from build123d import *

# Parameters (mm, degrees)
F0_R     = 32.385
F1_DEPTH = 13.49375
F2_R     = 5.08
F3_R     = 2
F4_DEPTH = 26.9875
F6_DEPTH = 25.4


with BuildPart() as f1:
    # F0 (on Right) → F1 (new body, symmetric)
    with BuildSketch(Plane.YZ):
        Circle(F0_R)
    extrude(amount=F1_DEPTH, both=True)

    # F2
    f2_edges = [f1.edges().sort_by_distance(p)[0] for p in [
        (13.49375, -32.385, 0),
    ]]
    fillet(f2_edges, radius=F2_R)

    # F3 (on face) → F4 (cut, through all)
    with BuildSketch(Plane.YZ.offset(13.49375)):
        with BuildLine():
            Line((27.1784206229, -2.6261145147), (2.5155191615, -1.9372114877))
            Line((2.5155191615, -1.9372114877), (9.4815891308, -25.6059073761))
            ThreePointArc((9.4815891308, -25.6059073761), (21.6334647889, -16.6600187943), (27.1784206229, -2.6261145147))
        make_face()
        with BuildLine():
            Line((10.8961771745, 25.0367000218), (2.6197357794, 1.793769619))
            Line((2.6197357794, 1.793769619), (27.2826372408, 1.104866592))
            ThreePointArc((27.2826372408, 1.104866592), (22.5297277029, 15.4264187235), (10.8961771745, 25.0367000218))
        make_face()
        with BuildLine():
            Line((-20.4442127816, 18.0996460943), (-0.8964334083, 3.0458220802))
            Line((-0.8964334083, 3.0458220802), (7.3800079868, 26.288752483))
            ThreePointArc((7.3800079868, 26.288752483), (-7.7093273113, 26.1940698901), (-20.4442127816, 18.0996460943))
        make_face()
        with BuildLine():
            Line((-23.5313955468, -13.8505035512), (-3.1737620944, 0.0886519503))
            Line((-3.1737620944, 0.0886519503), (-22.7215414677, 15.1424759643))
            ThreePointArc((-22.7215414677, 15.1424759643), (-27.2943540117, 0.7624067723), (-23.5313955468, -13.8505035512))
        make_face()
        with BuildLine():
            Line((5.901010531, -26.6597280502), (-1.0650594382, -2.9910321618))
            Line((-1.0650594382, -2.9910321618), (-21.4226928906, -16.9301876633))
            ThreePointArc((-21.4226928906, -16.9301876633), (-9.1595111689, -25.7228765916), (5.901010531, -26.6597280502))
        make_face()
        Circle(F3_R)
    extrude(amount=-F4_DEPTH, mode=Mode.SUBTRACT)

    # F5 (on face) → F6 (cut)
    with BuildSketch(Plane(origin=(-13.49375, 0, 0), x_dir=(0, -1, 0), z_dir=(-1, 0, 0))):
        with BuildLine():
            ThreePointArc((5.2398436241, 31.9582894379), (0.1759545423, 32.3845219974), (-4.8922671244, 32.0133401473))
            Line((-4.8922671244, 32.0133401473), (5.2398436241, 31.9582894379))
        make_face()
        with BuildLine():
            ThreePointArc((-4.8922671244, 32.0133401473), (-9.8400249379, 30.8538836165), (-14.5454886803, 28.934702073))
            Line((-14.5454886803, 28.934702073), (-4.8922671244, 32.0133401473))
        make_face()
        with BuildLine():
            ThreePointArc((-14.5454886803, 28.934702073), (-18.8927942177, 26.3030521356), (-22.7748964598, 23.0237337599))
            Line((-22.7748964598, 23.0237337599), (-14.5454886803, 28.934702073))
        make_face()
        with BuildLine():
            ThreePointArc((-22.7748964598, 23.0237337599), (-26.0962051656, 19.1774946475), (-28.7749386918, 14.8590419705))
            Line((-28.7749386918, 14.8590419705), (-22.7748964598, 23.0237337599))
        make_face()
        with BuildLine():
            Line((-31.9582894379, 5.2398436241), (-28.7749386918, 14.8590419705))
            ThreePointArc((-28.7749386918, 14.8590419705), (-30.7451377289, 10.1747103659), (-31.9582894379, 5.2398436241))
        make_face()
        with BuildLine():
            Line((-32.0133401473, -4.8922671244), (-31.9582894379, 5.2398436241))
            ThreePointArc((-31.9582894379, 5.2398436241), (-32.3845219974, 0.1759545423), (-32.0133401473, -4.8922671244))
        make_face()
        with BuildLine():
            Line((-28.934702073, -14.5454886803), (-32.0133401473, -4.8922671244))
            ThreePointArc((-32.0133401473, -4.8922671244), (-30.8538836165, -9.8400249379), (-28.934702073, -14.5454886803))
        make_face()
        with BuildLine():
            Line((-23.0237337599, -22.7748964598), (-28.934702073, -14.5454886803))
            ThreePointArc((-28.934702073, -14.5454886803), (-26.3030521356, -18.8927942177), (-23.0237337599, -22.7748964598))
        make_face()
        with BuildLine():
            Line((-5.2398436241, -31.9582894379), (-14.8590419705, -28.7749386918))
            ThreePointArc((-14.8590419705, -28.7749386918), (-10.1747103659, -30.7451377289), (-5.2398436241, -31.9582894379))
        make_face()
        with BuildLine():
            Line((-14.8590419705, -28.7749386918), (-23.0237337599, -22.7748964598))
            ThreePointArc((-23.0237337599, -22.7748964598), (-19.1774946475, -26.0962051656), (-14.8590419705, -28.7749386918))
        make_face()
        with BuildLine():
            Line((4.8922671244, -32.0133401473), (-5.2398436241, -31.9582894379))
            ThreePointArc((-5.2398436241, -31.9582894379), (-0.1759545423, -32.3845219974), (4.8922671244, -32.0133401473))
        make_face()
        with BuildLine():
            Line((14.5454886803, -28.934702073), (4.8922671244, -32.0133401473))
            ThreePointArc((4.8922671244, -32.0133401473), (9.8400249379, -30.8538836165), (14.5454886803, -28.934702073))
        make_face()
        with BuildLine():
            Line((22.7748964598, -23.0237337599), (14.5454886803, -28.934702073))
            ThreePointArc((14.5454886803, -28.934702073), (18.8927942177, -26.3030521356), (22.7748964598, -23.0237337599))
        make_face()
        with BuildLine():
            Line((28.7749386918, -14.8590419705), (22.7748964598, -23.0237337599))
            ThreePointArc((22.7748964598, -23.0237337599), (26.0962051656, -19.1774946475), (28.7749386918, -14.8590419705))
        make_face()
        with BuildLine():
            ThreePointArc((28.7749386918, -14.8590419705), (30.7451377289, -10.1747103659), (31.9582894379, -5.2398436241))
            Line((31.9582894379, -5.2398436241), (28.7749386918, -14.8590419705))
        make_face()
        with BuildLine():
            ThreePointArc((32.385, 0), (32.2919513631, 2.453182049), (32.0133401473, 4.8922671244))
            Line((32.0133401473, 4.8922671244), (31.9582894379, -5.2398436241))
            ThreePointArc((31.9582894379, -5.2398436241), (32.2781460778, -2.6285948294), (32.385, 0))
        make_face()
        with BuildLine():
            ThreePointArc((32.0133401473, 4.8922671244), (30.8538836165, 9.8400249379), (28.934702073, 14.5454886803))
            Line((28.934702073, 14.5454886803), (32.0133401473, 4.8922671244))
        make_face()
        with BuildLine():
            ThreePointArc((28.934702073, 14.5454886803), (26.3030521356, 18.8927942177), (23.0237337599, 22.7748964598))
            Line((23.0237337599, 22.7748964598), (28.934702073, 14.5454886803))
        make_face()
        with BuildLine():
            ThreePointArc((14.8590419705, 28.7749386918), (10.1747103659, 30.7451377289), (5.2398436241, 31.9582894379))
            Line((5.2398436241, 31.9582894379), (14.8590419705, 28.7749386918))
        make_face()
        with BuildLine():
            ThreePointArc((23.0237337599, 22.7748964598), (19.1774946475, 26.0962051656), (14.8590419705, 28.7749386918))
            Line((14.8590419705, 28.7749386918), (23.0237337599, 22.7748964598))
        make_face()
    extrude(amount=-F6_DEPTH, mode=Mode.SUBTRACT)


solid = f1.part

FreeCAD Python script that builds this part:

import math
import FreeCAD as App
import Part
import Sketcher

V = App.Vector
Q = App.Units.Quantity


def edges_at(feature, points):
    """Names of the edges that pass closest to the given points."""
    edges = feature.Shape.Edges
    near = lambda p: min(range(len(edges)), key=lambda i: edges[i].distToShape(Part.Vertex(*p))[0])
    return sorted({f"Edge{near(p) + 1}" for p in points})

doc = App.newDocument("Part")
body = doc.addObject("PartDesign::Body", "Body")

# Sketch on YZ plane
sketch1 = doc.addObject("Sketcher::SketchObject", "Sketch")
body.addObject(sketch1)
sketch1.AttachmentSupport = (doc.YZ_Plane, [""])
sketch1.MapMode = "FlatFace"
sketch1.addGeometry(Part.Circle(V(0, 0, 0), V(0, 0, 1), 32), False)
sketch1.addConstraint([
    Sketcher.Constraint("Coincident", 0, 3, -1, 1),
    Sketcher.Constraint("Diameter", 0, Q("2.55 in")),
])
pad1 = doc.addObject("PartDesign::Pad", "Pad")
body.addObject(pad1)
pad1.Profile = sketch1
pad1.Length = Q("1.0625 in")
pad1.Midplane = True
doc.recompute()

fillet = doc.addObject("PartDesign::Fillet", "Fillet")
body.addObject(fillet)
fillet.Base = (pad1, edges_at(pad1, [(13.494, -32.385, 0)]))
fillet.Radius = Q("0.2 in")

# Sketch on YZ plane
sketch2 = doc.addObject("Sketcher::SketchObject", "Sketch001")
body.addObject(sketch2)
sketch2.AttachmentSupport = (doc.YZ_Plane, [""])
sketch2.MapMode = "FlatFace"
sketch2.AttachmentOffset = App.Placement(V(0, 0, 0.53125 * 25.4), App.Rotation())
sketch2.addGeometry([
    Part.LineSegment(V(27.2, -2.6, 0), V(2.5, -1.9, 0)),  # 0
    Part.LineSegment(V(2.5, -1.9, 0), V(9.5, -25.6, 0)),  # 1
    Part.ArcOfCircle(Part.Circle(V(0, 0, 0), V(0, 0, 1), 27.3), math.radians(-70), math.radians(-6)),  # 2
    Part.LineSegment(V(10.9, 25, 0), V(2.6, 1.8, 0)),  # 3
    Part.LineSegment(V(2.6, 1.8, 0), V(27.3, 1.1, 0)),  # 4
    Part.ArcOfCircle(Part.Circle(V(0, 0, 0), V(0, 0, 1), 27.3), math.radians(2), math.radians(66)),  # 5
    Part.LineSegment(V(-20.4, 18.1, 0), V(-0.9, 3, 0)),  # 6
    Part.LineSegment(V(-0.9, 3, 0), V(7.4, 26.3, 0)),  # 7
    Part.ArcOfCircle(Part.Circle(V(0, 0, 0), V(0, 0, 1), 27.3), math.radians(74), math.radians(138)),  # 8
    Part.LineSegment(V(-23.5, -13.9, 0), V(-3.2, 0.1, 0)),  # 9
    Part.LineSegment(V(-3.2, 0.1, 0), V(-22.7, 15.1, 0)),  # 10
    Part.ArcOfCircle(Part.Circle(V(0, 0, 0), V(0, 0, 1), 27.3), math.radians(146), math.radians(210)),  # 11
    Part.LineSegment(V(5.9, -26.7, 0), V(-1.1, -3, 0)),  # 12
    Part.LineSegment(V(-1.1, -3, 0), V(-21.4, -16.9, 0)),  # 13
    Part.ArcOfCircle(Part.Circle(V(0, 0, 0), V(0, 0, 1), 27.3), math.radians(-142), math.radians(-78)),  # 14
    Part.Circle(V(0, 0, 0), V(0, 0, 1), 2),  # 15
], False)
sketch2.addConstraint([
    Sketcher.Constraint("Coincident", 0, 2, 1, 1),
    Sketcher.Constraint("Coincident", 1, 2, 2, 1),
    Sketcher.Constraint("Coincident", 2, 2, 0, 1),
    Sketcher.Constraint("Coincident", 3, 2, 4, 1),
    Sketcher.Constraint("Coincident", 4, 2, 5, 1),
    Sketcher.Constraint("Coincident", 5, 2, 3, 1),
    Sketcher.Constraint("Coincident", 6, 2, 7, 1),
    Sketcher.Constraint("Coincident", 7, 2, 8, 1),
    Sketcher.Constraint("Coincident", 8, 2, 6, 1),
    Sketcher.Constraint("Coincident", 9, 2, 10, 1),
    Sketcher.Constraint("Coincident", 10, 2, 11, 1),
    Sketcher.Constraint("Coincident", 11, 2, 9, 1),
    Sketcher.Constraint("Coincident", 12, 2, 13, 1),
    Sketcher.Constraint("Coincident", 13, 2, 14, 1),
    Sketcher.Constraint("Coincident", 14, 2, 12, 1),
    Sketcher.Constraint("Coincident", 2, 3, -1, 1),
    Sketcher.Constraint("Coincident", 5, 3, -1, 1),
    Sketcher.Constraint("Coincident", 8, 3, -1, 1),
    Sketcher.Constraint("Coincident", 11, 3, -1, 1),
    Sketcher.Constraint("Coincident", 14, 3, -1, 1),
    Sketcher.Constraint("Coincident", 15, 3, -1, 1),
    Sketcher.Constraint("Equal", 2, 5),
    Sketcher.Constraint("Equal", 5, 8),
    Sketcher.Constraint("Equal", 8, 11),
    Sketcher.Constraint("Equal", 11, 14),
    Sketcher.Constraint("Parallel", 0, 4),
    Sketcher.Constraint("Parallel", 3, 7),
    Sketcher.Constraint("Parallel", 6, 10),
    Sketcher.Constraint("Parallel", 1, 12),
    Sketcher.Constraint("Parallel", 9, 13),
    Sketcher.Constraint("Equal", 0, 1),
    Sketcher.Constraint("Equal", 1, 3),
    Sketcher.Constraint("Equal", 3, 4),
    Sketcher.Constraint("Equal", 4, 6),
    Sketcher.Constraint("Equal", 6, 7),
    Sketcher.Constraint("Equal", 7, 9),
    Sketcher.Constraint("Equal", 9, 10),
    Sketcher.Constraint("Equal", 10, 12),
    Sketcher.Constraint("Equal", 12, 13),
    Sketcher.Constraint("Radius", 2, Q("1.075 in")),
    Sketcher.Constraint("Angle", 0, Q("178.399987 deg")),
    Sketcher.Constraint("Angle", 1, Q("-73.600013 deg")),
    Sketcher.Constraint("Angle", 3, Q("-109.600013 deg")),
    Sketcher.Constraint("Angle", 6, Q("-37.600013 deg")),
    Sketcher.Constraint("Angle", 9, Q("34.399987 deg")),
    Sketcher.Constraint("Diameter", 15, Q("4 mm")),
    Sketcher.Constraint("DistanceY", -1, 1, 5, 2, Q("25.0367 mm")),
])
pocket1 = doc.addObject("PartDesign::Pocket", "Pocket")
body.addObject(pocket1)
pocket1.Profile = sketch2
pocket1.Type = "ThroughAll"

# Sketch on YZ plane
sketch3 = doc.addObject("Sketcher::SketchObject", "Sketch002")
body.addObject(sketch3)
sketch3.AttachmentSupport = (doc.YZ_Plane, [""])
sketch3.MapMode = "FlatFace"
sketch3.AttachmentOffset = App.Placement(V(0, 0, -0.53125 * 25.4), App.Rotation())
sketch3.addGeometry([
    Part.ArcOfCircle(Part.Circle(V(0, 0, 0), V(0, 0, 1), 32.4), math.radians(81.31), math.radians(99.31)),  # 0
    Part.LineSegment(V(4.9, 32, 0), V(-5.2, 32, 0)),  # 1
    Part.ArcOfCircle(Part.Circle(V(0, 0, 0), V(0, 0, 1), 32.4), math.radians(63.31), math.radians(81.31)),  # 2
    Part.LineSegment(V(14.5, 28.9, 0), V(4.9, 32, 0)),  # 3
    Part.ArcOfCircle(Part.Circle(V(0, 0, 0), V(0, 0, 1), 32.4), math.radians(45.31), math.radians(63.31)),  # 4
    Part.LineSegment(V(22.8, 23, 0), V(14.5, 28.9, 0)),  # 5
    Part.ArcOfCircle(Part.Circle(V(0, 0, 0), V(0, 0, 1), 32.4), math.radians(27.31), math.radians(45.31)),  # 6
    Part.LineSegment(V(28.8, 14.9, 0), V(22.8, 23, 0)),  # 7
    Part.LineSegment(V(32, 5.2, 0), V(28.8, 14.9, 0)),  # 8
    Part.ArcOfCircle(Part.Circle(V(0, 0, 0), V(0, 0, 1), 32.4), math.radians(9.31), math.radians(27.31)),  # 9
    Part.LineSegment(V(32, -4.9, 0), V(32, 5.2, 0)),  # 10
    Part.ArcOfCircle(Part.Circle(V(0, 0, 0), V(0, 0, 1), 32.4), math.radians(-8.69), math.radians(9.31)),  # 11
    Part.LineSegment(V(28.9, -14.5, 0), V(32, -4.9, 0)),  # 12
    Part.ArcOfCircle(Part.Circle(V(0, 0, 0), V(0, 0, 1), 32.4), math.radians(-26.69), math.radians(-8.69)),  # 13
    Part.LineSegment(V(23, -22.8, 0), V(28.9, -14.5, 0)),  # 14
    Part.ArcOfCircle(Part.Circle(V(0, 0, 0), V(0, 0, 1), 32.4), math.radians(-44.69), math.radians(-26.69)),  # 15
    Part.LineSegment(V(5.2, -32, 0), V(14.9, -28.8, 0)),  # 16
    Part.ArcOfCircle(Part.Circle(V(0, 0, 0), V(0, 0, 1), 32.4), math.radians(-80.69), math.radians(-62.69)),  # 17
    Part.LineSegment(V(14.9, -28.8, 0), V(23, -22.8, 0)),  # 18
    Part.ArcOfCircle(Part.Circle(V(0, 0, 0), V(0, 0, 1), 32.4), math.radians(-62.69), math.radians(-44.69)),  # 19
    Part.LineSegment(V(-4.9, -32, 0), V(5.2, -32, 0)),  # 20
    Part.ArcOfCircle(Part.Circle(V(0, 0, 0), V(0, 0, 1), 32.4), math.radians(-98.69), math.radians(-80.69)),  # 21
    Part.LineSegment(V(-14.5, -28.9, 0), V(-4.9, -32, 0)),  # 22
    Part.ArcOfCircle(Part.Circle(V(0, 0, 0), V(0, 0, 1), 32.4), math.radians(-116.69), math.radians(-98.69)),  # 23
    Part.LineSegment(V(-22.8, -23, 0), V(-14.5, -28.9, 0)),  # 24
    Part.ArcOfCircle(Part.Circle(V(0, 0, 0), V(0, 0, 1), 32.4), math.radians(-134.69), math.radians(-116.69)),  # 25
    Part.LineSegment(V(-28.8, -14.9, 0), V(-22.8, -23, 0)),  # 26
    Part.ArcOfCircle(Part.Circle(V(0, 0, 0), V(0, 0, 1), 32.4), math.radians(-152.69), math.radians(-134.69)),  # 27
    Part.ArcOfCircle(Part.Circle(V(0, 0, 0), V(0, 0, 1), 32.4), math.radians(-170.69), math.radians(-152.69)),  # 28
    Part.LineSegment(V(-32, -5.2, 0), V(-28.8, -14.9, 0)),  # 29
    Part.ArcOfCircle(Part.Circle(V(0, 0, 0), V(0, 0, 1), 32.4), math.radians(171.31), math.radians(180)),  # 30
    Part.LineSegment(V(-32, 4.9, 0), V(-32, -5.2, 0)),  # 31
    Part.ArcOfCircle(Part.Circle(V(0, 0, 0), V(0, 0, 1), 32.4), math.radians(-180), math.radians(-170.69)),  # 32
    Part.ArcOfCircle(Part.Circle(V(0, 0, 0), V(0, 0, 1), 32.4), math.radians(153.31), math.radians(171.31)),  # 33
    Part.LineSegment(V(-28.9, 14.5, 0), V(-32, 4.9, 0)),  # 34
    Part.ArcOfCircle(Part.Circle(V(0, 0, 0), V(0, 0, 1), 32.4), math.radians(135.31), math.radians(153.31)),  # 35
    Part.LineSegment(V(-23, 22.8, 0), V(-28.9, 14.5, 0)),  # 36
    Part.ArcOfCircle(Part.Circle(V(0, 0, 0), V(0, 0, 1), 32.4), math.radians(99.31), math.radians(117.31)),  # 37
    Part.LineSegment(V(-5.2, 32, 0), V(-14.9, 28.8, 0)),  # 38
    Part.ArcOfCircle(Part.Circle(V(0, 0, 0), V(0, 0, 1), 32.4), math.radians(117.31), math.radians(135.31)),  # 39
    Part.LineSegment(V(-14.9, 28.8, 0), V(-23, 22.8, 0)),  # 40
], False)
sketch3.addConstraint([
    Sketcher.Constraint("Coincident", 0, 1, 1, 1),
    Sketcher.Constraint("Coincident", 1, 2, 0, 2),
    Sketcher.Constraint("Coincident", 2, 1, 3, 1),
    Sketcher.Constraint("Coincident", 3, 2, 2, 2),
    Sketcher.Constraint("Coincident", 4, 1, 5, 1),
    Sketcher.Constraint("Coincident", 5, 2, 4, 2),
    Sketcher.Constraint("Coincident", 6, 1, 7, 1),
    Sketcher.Constraint("Coincident", 7, 2, 6, 2),
    Sketcher.Constraint("Coincident", 8, 1, 9, 1),
    Sketcher.Constraint("Coincident", 9, 2, 8, 2),
    Sketcher.Constraint("Coincident", 10, 1, 11, 1),
    Sketcher.Constraint("Coincident", 11, 2, 10, 2),
    Sketcher.Constraint("Coincident", 12, 1, 13, 1),
    Sketcher.Constraint("Coincident", 13, 2, 12, 2),
    Sketcher.Constraint("Coincident", 14, 1, 15, 1),
    Sketcher.Constraint("Coincident", 15, 2, 14, 2),
    Sketcher.Constraint("Coincident", 16, 1, 17, 1),
    Sketcher.Constraint("Coincident", 17, 2, 16, 2),
    Sketcher.Constraint("Coincident", 18, 1, 19, 1),
    Sketcher.Constraint("Coincident", 19, 2, 18, 2),
    Sketcher.Constraint("Coincident", 20, 1, 21, 1),
    Sketcher.Constraint("Coincident", 21, 2, 20, 2),
    Sketcher.Constraint("Coincident", 22, 1, 23, 1),
    Sketcher.Constraint("Coincident", 23, 2, 22, 2),
    Sketcher.Constraint("Coincident", 24, 1, 25, 1),
    Sketcher.Constraint("Coincident", 25, 2, 24, 2),
    Sketcher.Constraint("Coincident", 26, 1, 27, 1),
    Sketcher.Constraint("Coincident", 27, 2, 26, 2),
    Sketcher.Constraint("Coincident", 28, 1, 29, 1),
    Sketcher.Constraint("Coincident", 29, 2, 28, 2),
    Sketcher.Constraint("Coincident", 30, 1, 31, 1),
    Sketcher.Constraint("Coincident", 31, 2, 32, 2),
    Sketcher.Constraint("Tangent", 32, 1, 30, 2),
    Sketcher.Constraint("Coincident", 33, 1, 34, 1),
    Sketcher.Constraint("Coincident", 34, 2, 33, 2),
    Sketcher.Constraint("Coincident", 35, 1, 36, 1),
    Sketcher.Constraint("Coincident", 36, 2, 35, 2),
    Sketcher.Constraint("Coincident", 37, 1, 38, 1),
    Sketcher.Constraint("Coincident", 38, 2, 37, 2),
    Sketcher.Constraint("Coincident", 39, 1, 40, 1),
    Sketcher.Constraint("Coincident", 40, 2, 39, 2),
    Sketcher.Constraint("Coincident", 0, 3, -1, 1),
    Sketcher.Constraint("Coincident", 2, 3, -1, 1),
    Sketcher.Constraint("Coincident", 4, 3, -1, 1),
    Sketcher.Constraint("Coincident", 6, 3, -1, 1),
    Sketcher.Constraint("Coincident", 9, 3, -1, 1),
    Sketcher.Constraint("Coincident", 11, 3, -1, 1),
    Sketcher.Constraint("Coincident", 13, 3, -1, 1),
    Sketcher.Constraint("Coincident", 15, 3, -1, 1),
    Sketcher.Constraint("Coincident", 17, 3, -1, 1),
    Sketcher.Constraint("Coincident", 19, 3, -1, 1),
    Sketcher.Constraint("Coincident", 21, 3, -1, 1),
    Sketcher.Constraint("Coincident", 23, 3, -1, 1),
    Sketcher.Constraint("Coincident", 25, 3, -1, 1),
    Sketcher.Constraint("Coincident", 27, 3, -1, 1),
    Sketcher.Constraint("Coincident", 28, 3, -1, 1),
    Sketcher.Constraint("Coincident", 30, 3, -1, 1),
    Sketcher.Constraint("Coincident", 33, 3, -1, 1),
    Sketcher.Constraint("Coincident", 35, 3, -1, 1),
    Sketcher.Constraint("Coincident", 37, 3, -1, 1),
    Sketcher.Constraint("Coincident", 39, 3, -1, 1),
    Sketcher.Constraint("Coincident", 3, 2, 0, 1),
    Sketcher.Constraint("Coincident", 5, 2, 2, 1),
    Sketcher.Constraint("Coincident", 7, 2, 4, 1),
    Sketcher.Constraint("Coincident", 9, 2, 6, 1),
    Sketcher.Constraint("Coincident", 11, 2, 8, 1),
    Sketcher.Constraint("Coincident", 13, 2, 10, 1),
    Sketcher.Constraint("Coincident", 15, 2, 12, 1),
    Sketcher.Constraint("Coincident", 18, 1, 17, 2),
    Sketcher.Constraint("Coincident", 19, 2, 14, 1),
    Sketcher.Constraint("Coincident", 21, 2, 16, 1),
    Sketcher.Constraint("Coincident", 23, 2, 20, 1),
    Sketcher.Constraint("Coincident", 25, 2, 22, 1),
    Sketcher.Constraint("Coincident", 27, 2, 24, 1),
    Sketcher.Constraint("Coincident", 29, 2, 26, 1),
    Sketcher.Constraint("Coincident", 31, 2, 28, 1),
    Sketcher.Constraint("Coincident", 34, 2, 30, 1),
    Sketcher.Constraint("Coincident", 36, 2, 33, 1),
    Sketcher.Constraint("Coincident", 37, 1, 1, 2),
    Sketcher.Constraint("Coincident", 39, 1, 38, 2),
    Sketcher.Constraint("Equal", 28, 30),
    Sketcher.Constraint("PointOnObject", 32, 1, -1),
    Sketcher.Constraint("Perpendicular", 1, 10),
    Sketcher.Constraint("Perpendicular", 3, 12),
    Sketcher.Constraint("Perpendicular", 5, 14),
    Sketcher.Constraint("Perpendicular", 8, 16),
    Sketcher.Constraint("Perpendicular", 7, 18),
    Sketcher.Constraint("Perpendicular", 10, 20),
    Sketcher.Constraint("Perpendicular", 12, 22),
    Sketcher.Constraint("Perpendicular", 14, 24),
    Sketcher.Constraint("Perpendicular", 18, 26),
    Sketcher.Constraint("Perpendicular", 16, 29),
    Sketcher.Constraint("Perpendicular", 20, 31),
    Sketcher.Constraint("Perpendicular", 22, 34),
    Sketcher.Constraint("Perpendicular", 24, 36),
    Sketcher.Constraint("Perpendicular", 29, 38),
    Sketcher.Constraint("Perpendicular", 26, 40),
    Sketcher.Constraint("Equal", 1, 3),
    Sketcher.Constraint("Equal", 3, 5),
    Sketcher.Constraint("Equal", 5, 7),
    Sketcher.Constraint("Equal", 7, 8),
    Sketcher.Constraint("Equal", 8, 10),
    Sketcher.Constraint("Radius", 0, Q("1.275 in")),
    Sketcher.Constraint("DistanceY", -1, 1, 0, 1, Q("32.01334 mm")),
])
pocket2 = doc.addObject("PartDesign::Pocket", "Pocket001")
body.addObject(pocket2)
pocket2.Profile = sketch3
pocket2.Length = Q("1 in")
pocket2.Reversed = True

doc.recompute()
